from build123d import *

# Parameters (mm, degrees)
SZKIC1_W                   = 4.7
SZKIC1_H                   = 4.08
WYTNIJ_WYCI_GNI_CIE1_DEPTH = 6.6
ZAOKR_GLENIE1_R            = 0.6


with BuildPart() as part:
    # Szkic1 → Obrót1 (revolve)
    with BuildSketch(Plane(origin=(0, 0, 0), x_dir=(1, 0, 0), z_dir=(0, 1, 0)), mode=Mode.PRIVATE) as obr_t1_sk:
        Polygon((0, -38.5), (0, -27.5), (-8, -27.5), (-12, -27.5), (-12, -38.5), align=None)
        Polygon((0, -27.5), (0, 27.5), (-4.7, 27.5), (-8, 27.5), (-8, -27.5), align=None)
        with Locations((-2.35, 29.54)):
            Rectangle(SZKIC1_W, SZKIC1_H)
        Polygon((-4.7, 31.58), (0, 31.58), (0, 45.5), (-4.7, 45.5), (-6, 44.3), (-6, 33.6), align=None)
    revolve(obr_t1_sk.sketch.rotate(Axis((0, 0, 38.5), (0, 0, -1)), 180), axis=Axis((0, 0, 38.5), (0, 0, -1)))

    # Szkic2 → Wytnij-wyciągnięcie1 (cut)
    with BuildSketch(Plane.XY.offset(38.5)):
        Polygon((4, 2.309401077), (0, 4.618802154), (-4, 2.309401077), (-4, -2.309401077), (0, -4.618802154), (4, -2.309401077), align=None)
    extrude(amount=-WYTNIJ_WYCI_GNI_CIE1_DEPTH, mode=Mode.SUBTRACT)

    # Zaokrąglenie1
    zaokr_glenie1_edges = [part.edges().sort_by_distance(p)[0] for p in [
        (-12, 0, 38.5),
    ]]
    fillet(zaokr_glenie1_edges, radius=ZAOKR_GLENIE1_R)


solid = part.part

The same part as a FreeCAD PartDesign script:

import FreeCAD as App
import Part
import Sketcher

V = App.Vector
Q = App.Units.Quantity


def edges_at(feature, points):
    """Names of the edges that pass closest to the given points."""
    edges = feature.Shape.Edges
    near = lambda p: min(range(len(edges)), key=lambda i: edges[i].distToShape(Part.Vertex(*p))[0])
    return sorted({f"Edge{near(p) + 1}" for p in points})

doc = App.newDocument("Part")
body = doc.addObject("PartDesign::Body", "Body")

# Sketch on XZ plane
sketch1 = doc.addObject("Sketcher::SketchObject", "Sketch")
body.addObject(sketch1)
sketch1.AttachmentSupport = (doc.XZ_Plane, [""])
sketch1.MapMode = "FlatFace"
sketch1.addGeometry([
    Part.LineSegment(V(0, 38.5, 0), V(0, -45.5, 0)),  # 0
    Part.LineSegment(V(0, -45.5, 0), V(-4.7, -45.5, 0)),  # 1
    Part.LineSegment(V(-4.7, -45.5, 0), V(-6, -44.3, 0)),  # 2
    Part.LineSegment(V(-6, -44.3, 0), V(-6, -33.6, 0)),  # 3
    Part.LineSegment(V(-6, -33.6, 0), V(-4.7, -31.6, 0)),  # 4
    Part.LineSegment(V(-4.7, -31.6, 0), V(-4.7, -27.5, 0)),  # 5
    Part.LineSegment(V(-4.7, -27.5, 0), V(-8, -27.5, 0)),  # 6
    Part.LineSegment(V(-8, -27.5, 0), V(-8, 27.5, 0)),  # 7
    Part.LineSegment(V(-8, 27.5, 0), V(-12, 27.5, 0)),  # 8
    Part.LineSegment(V(-12, 27.5, 0), V(-12, 38.5, 0)),  # 9
    Part.LineSegment(V(-12, 38.5, 0), V(0, 38.5, 0)),  # 10
], False)
sketch1.addConstraint([
    Sketcher.Constraint("Coincident", 0, 2, 1, 1),
    Sketcher.Constraint("Coincident", 1, 2, 2, 1),
    Sketcher.Constraint("Coincident", 2, 2, 3, 1),
    Sketcher.Constraint("Coincident", 3, 2, 4, 1),
    Sketcher.Constraint("Coincident", 4, 2, 5, 1),
    Sketcher.Constraint("Coincident", 5, 2, 6, 1),
    Sketcher.Constraint("Coincident", 6, 2, 7, 1),
    Sketcher.Constraint("Coincident", 7, 2, 8, 1),
    Sketcher.Constraint("Coincident", 8, 2, 9, 1),
    Sketcher.Constraint("Coincident", 9, 2, 10, 1),
    Sketcher.Constraint("Coincident", 10, 2, 0, 1),
    Sketcher.Constraint("Vertical", 0),
    Sketcher.Constraint("Horizontal", 1),
    Sketcher.Constraint("Vertical", 3),
    Sketcher.Constraint("Vertical", 5),
    Sketcher.Constraint("Horizontal", 6),
    Sketcher.Constraint("Vertical", 7),
    Sketcher.Constraint("Horizontal", 8),
    Sketcher.Constraint("Vertical", 9),
    Sketcher.Constraint("Horizontal", 10),
    Sketcher.Constraint("PointOnObject", 0, 2, -2),
    Sketcher.Constraint("Vertical", 1, 2, 4, 2),
    Sketcher.Constraint("DistanceX", 8, 2, 8, 1, 4.0),
    Sketcher.Constraint("DistanceX", 10, 1, 10, 2, 12.0),
    Sketcher.Constraint("DistanceY", 0, 2, 0, 1, 84.0),
    Sketcher.Constraint("DistanceY", 7, 1, 7, 2, 55.0),
    Sketcher.Constraint("DistanceY", 9, 1, 9, 2, 11.0),
    Sketcher.Constraint("DistanceX", 1, 2, 1, 1, 4.7),
    Sketcher.Constraint("DistanceY", 3, 1, 3, 2, 10.7),
    Sketcher.Constraint("DistanceX", 2, 2, -1, 1, 6.0),
    Sketcher.Constraint("DistanceY", 5, 1, 5, 2, 4.08),
    Sketcher.Constraint("DistanceY", 0, 2, -1, 1, 45.5),
    Sketcher.Constraint("DistanceY", 2, 2, -1, 1, 44.3),
])
revolution = doc.addObject("PartDesign::Revolution", "Revolution")
body.addObject(revolution)
revolution.Profile = sketch1
revolution.ReferenceAxis = (sketch1, ["V_Axis"])
revolution.Angle = 360

# Sketch on XY plane
sketch2 = doc.addObject("Sketcher::SketchObject", "Sketch001")
body.addObject(sketch2)
sketch2.AttachmentSupport = (doc.XY_Plane, [""])
sketch2.MapMode = "FlatFace"
sketch2.AttachmentOffset = App.Placement(V(0, 0, 38.5), App.Rotation())
sketch2.addGeometry([
    Part.LineSegment(V(4, 2.3, 0), V(0, 4.6, 0)),  # 0
    Part.LineSegment(V(0, 4.6, 0), V(-4, 2.3, 0)),  # 1
    Part.LineSegment(V(-4, 2.3, 0), V(-4, -2.3, 0)),  # 2
    Part.LineSegment(V(-4, -2.3, 0), V(0, -4.6, 0)),  # 3
    Part.LineSegment(V(0, -4.6, 0), V(4, -2.3, 0)),  # 4
    Part.LineSegment(V(4, -2.3, 0), V(4, 2.3, 0)),  # 5
], False)
sketch2.addConstraint([
    Sketcher.Constraint("Coincident", 0, 2, 1, 1),
    Sketcher.Constraint("Coincident", 1, 2, 2, 1),
    Sketcher.Constraint("Coincident", 2, 2, 3, 1),
    Sketcher.Constraint("Coincident", 3, 2, 4, 1),
    Sketcher.Constraint("Coincident", 4, 2, 5, 1),
    Sketcher.Constraint("Coincident", 5, 2, 0, 1),
    Sketcher.Constraint("Vertical", 2),
    Sketcher.Constraint("Vertical", 5),
    Sketcher.Constraint("Symmetric", 0, 2, 3, 2, -1, 1),
    Sketcher.Constraint("Symmetric", 1, 2, 4, 2, -1, 1),
    Sketcher.Constraint("PointOnObject", 0, 2, -2),
    Sketcher.Constraint("Parallel", 0, 3),
    Sketcher.Constraint("Horizontal", 2, 2, 4, 2),
    Sketcher.Constraint("Angle", 0, Q("150 deg")),
    Sketcher.Constraint("DistanceX", 1, 2, -1, 1, 4.0),
    Sketcher.Constraint("DistanceY", -1, 1, 1, 2, 2.309401),
])
pocket1 = doc.addObject("PartDesign::Pocket", "Pocket")
body.addObject(pocket1)
pocket1.Profile = sketch2
pocket1.Length = 6.6
doc.recompute()

fillet = doc.addObject("PartDesign::Fillet", "Fillet")
body.addObject(fillet)
fillet.Base = (pocket1, edges_at(pocket1, [(-12, 0, 38.5)]))
fillet.Radius = 0.6

doc.recompute()
